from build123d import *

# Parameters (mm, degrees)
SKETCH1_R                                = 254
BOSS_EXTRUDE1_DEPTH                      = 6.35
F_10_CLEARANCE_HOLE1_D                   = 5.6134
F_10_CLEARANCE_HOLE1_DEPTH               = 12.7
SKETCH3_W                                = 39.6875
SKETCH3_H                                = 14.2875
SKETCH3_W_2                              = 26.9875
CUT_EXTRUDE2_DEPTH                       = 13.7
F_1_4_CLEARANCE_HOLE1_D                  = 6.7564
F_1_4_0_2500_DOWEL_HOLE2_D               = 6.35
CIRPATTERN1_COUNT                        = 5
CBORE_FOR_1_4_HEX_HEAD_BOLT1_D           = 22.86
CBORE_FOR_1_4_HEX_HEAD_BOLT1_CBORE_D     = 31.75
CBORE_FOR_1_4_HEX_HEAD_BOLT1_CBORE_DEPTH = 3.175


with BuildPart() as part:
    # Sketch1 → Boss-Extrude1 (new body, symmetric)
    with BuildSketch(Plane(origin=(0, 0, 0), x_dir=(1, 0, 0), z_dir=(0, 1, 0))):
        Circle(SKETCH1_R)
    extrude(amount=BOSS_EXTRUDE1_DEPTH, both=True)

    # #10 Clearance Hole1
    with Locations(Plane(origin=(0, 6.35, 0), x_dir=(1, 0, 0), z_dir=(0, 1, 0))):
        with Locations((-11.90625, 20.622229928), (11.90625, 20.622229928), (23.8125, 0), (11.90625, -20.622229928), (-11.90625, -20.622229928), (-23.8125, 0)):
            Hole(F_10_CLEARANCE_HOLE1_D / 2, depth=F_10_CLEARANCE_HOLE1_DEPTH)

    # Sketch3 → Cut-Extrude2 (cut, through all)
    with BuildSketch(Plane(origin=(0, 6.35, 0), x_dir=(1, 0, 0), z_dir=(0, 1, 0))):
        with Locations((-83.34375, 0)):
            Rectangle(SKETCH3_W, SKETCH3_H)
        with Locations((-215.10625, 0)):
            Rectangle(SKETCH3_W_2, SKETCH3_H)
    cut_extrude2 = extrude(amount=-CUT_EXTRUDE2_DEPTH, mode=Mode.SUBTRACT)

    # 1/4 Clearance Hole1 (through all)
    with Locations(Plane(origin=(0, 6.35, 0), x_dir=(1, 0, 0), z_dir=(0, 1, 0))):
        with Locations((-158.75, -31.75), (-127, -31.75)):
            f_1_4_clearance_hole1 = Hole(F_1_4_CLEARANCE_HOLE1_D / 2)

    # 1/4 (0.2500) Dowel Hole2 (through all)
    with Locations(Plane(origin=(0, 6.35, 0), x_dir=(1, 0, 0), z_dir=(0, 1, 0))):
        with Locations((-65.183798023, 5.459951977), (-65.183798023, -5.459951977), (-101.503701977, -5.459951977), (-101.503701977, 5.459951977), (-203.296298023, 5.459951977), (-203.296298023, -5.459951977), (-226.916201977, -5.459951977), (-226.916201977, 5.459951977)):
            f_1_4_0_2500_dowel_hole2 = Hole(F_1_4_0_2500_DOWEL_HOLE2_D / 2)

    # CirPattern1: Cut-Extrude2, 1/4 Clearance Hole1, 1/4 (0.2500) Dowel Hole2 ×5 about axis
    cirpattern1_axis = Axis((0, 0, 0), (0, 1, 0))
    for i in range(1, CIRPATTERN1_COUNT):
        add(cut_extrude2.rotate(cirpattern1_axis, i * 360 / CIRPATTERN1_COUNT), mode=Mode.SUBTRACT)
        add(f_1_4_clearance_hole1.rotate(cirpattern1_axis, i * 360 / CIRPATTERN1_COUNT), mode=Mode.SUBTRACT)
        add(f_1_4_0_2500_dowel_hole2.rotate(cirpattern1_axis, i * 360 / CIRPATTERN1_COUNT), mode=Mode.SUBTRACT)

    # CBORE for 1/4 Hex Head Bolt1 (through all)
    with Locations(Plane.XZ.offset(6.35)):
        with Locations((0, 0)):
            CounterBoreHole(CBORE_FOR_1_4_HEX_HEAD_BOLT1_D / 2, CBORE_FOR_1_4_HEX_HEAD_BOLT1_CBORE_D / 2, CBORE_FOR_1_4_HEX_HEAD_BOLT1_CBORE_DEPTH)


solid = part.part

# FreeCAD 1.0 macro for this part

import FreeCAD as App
import Part
import Sketcher

V = App.Vector
Q = App.Units.Quantity


def add_polygon(sketch, points):
    """Adds a closed chain of lines whose ends are joined by coincident constraints."""
    first, n = sketch.GeometryCount, len(points)
    for a, b in zip(points, points[1:] + points[:1]):
        sketch.addGeometry(Part.LineSegment(App.Vector(*a, 0), App.Vector(*b, 0)), False)
    for i in range(n):
        sketch.addConstraint(Sketcher.Constraint("Coincident", first + i, 2, first + (i + 1) % n, 1))

doc = App.newDocument("Part")
body = doc.addObject("PartDesign::Body", "Body")

# Sketch on XZ plane
sketch1 = body.newObject("Sketcher::SketchObject", "Sketch")
sketch1.AttachmentSupport = (doc.getObject("XZ_Plane"), [""])
sketch1.MapMode = "FlatFace"
sketch1.addGeometry(Part.Circle(V(0, 0, 0), V(0, 0, 1), 254), False)
sketch1.addConstraint(Sketcher.Constraint("Coincident", 0, 3, -1, 1))
sketch1.addConstraint(Sketcher.Constraint("Diameter", 0, Q("20 in")))
pad1 = body.newObject("PartDesign::Pad", "Pad")
pad1.Profile = sketch1
pad1.Length = Q("0.5 in")
pad1.Midplane = True

# Sketch on XZ plane
sketch2 = body.newObject("Sketcher::SketchObject", "Sketch001")
sketch2.AttachmentSupport = (doc.getObject("XZ_Plane"), [""])
sketch2.MapMode = "FlatFace"
sketch2.AttachmentOffset = App.Placement(V(0, 0, -0.25 * 25.4), App.Rotation())
sketch2.addGeometry(Part.Circle(V(-11.9, -20.6, 0), V(0, 0, 1), 2.8), False)
sketch2.addGeometry(Part.Circle(V(11.9, -20.6, 0), V(0, 0, 1), 2.8), False)
sketch2.addGeometry(Part.Circle(V(23.8, 0, 0), V(0, 0, 1), 2.8), False)
sketch2.addGeometry(Part.Circle(V(11.9, 20.6, 0), V(0, 0, 1), 2.8), False)
sketch2.addGeometry(Part.Circle(V(-11.9, 20.6, 0), V(0, 0, 1), 2.8), False)
sketch2.addGeometry(Part.Circle(V(-23.8, 0, 0), V(0, 0, 1), 2.8), False)
sketch2.addConstraint(Sketcher.Constraint("Equal", 0, 1))
sketch2.addConstraint(Sketcher.Constraint("Equal", 1, 2))
sketch2.addConstraint(Sketcher.Constraint("Equal", 2, 3))
sketch2.addConstraint(Sketcher.Constraint("Equal", 3, 4))
sketch2.addConstraint(Sketcher.Constraint("Equal", 4, 5))
sketch2.addConstraint(Sketcher.Constraint("Symmetric", 0, 3, 3, 3, -1, 1))
sketch2.addConstraint(Sketcher.Constraint("Symmetric", 1, 3, 4, 3, -1, 1))
sketch2.addConstraint(Sketcher.Constraint("Symmetric", 2, 3, 5, 3, -1, 1))
sketch2.addConstraint(Sketcher.Constraint("Symmetric", 0, 3, 1, 3, -2))
sketch2.addConstraint(Sketcher.Constraint("PointOnObject", 2, 3, -1))
sketch2.addConstraint(Sketcher.Constraint("Diameter", 0, Q("0.221 in")))
sketch2.addConstraint(Sketcher.Constraint("DistanceX", 0, 3, -1, 1, Q("0.46875 in")))
sketch2.addConstraint(Sketcher.Constraint("DistanceX", -1, 1, 2, 3, Q("0.9375 in")))
sketch2.addConstraint(Sketcher.Constraint("DistanceY", 0, 3, -1, 1, Q("20.62223 mm")))
doc.recompute()
hole = body.newObject("PartDesign::Hole", "Hole")
hole.Profile = sketch2
hole.ThreadType = "None"
hole.Diameter = Q("0.221 in")
hole.DepthType = "Dimension"
hole.Depth = Q("0.5 in")
hole.DrillPoint = "Flat"
hole.Reversed = True

# Sketch on XZ plane
sketch3 = body.newObject("Sketcher::SketchObject", "Sketch002")
sketch3.AttachmentSupport = (doc.getObject("XZ_Plane"), [""])
sketch3.MapMode = "FlatFace"
sketch3.AttachmentOffset = App.Placement(V(0, 0, -0.25 * 25.4), App.Rotation())
add_polygon(sketch3, [(-103, -7), (-103, 7), (-64, 7), (-64, -7)])  # lines 0-3
add_polygon(sketch3, [(-229, -7), (-229, 7), (-202, 7), (-202, -7)])  # lines 4-7
sketch3.addConstraint(Sketcher.Constraint("Vertical", 0))
sketch3.addConstraint(Sketcher.Constraint("Horizontal", 1))
sketch3.addConstraint(Sketcher.Constraint("Vertical", 2))
sketch3.addConstraint(Sketcher.Constraint("Horizontal", 3))
sketch3.addConstraint(Sketcher.Constraint("Vertical", 4))
sketch3.addConstraint(Sketcher.Constraint("Horizontal", 5))
sketch3.addConstraint(Sketcher.Constraint("Vertical", 6))
sketch3.addConstraint(Sketcher.Constraint("Horizontal", 7))
sketch3.addConstraint(Sketcher.Constraint("Horizontal", 1, 2, 4, 2))
sketch3.addConstraint(Sketcher.Constraint("Horizontal", 3, 2, 6, 2))
sketch3.addConstraint(Sketcher.Constraint("DistanceX", 4, 2, -1, 1, Q("9 in")))
sketch3.addConstraint(Sketcher.Constraint("DistanceX", 1, 2, -1, 1, Q("2.5 in")))
sketch3.addConstraint(Sketcher.Constraint("DistanceX", 1, 1, 1, 2, Q("1.5625 in")))
sketch3.addConstraint(Sketcher.Constraint("DistanceX", 5, 1, 5, 2, Q("1.0625 in")))
sketch3.addConstraint(Sketcher.Constraint("DistanceY", 0, 1, 0, 2, Q("0.5625 in")))
sketch3.addConstraint(Sketcher.Constraint("DistanceY", -1, 1, 0, 2, Q("0.28125 in")))
pocket1 = body.newObject("PartDesign::Pocket", "Pocket")
pocket1.Profile = sketch3
pocket1.Type = "ThroughAll"
pocket1.Reversed = True

# Sketch on XZ plane
sketch4 = body.newObject("Sketcher::SketchObject", "Sketch003")
sketch4.AttachmentSupport = (doc.getObject("XZ_Plane"), [""])
sketch4.MapMode = "FlatFace"
sketch4.AttachmentOffset = App.Placement(V(0, 0, -0.25 * 25.4), App.Rotation())
sketch4.addGeometry(Part.Circle(V(-158.8, 31.8, 0), V(0, 0, 1), 3.4), False)
sketch4.addGeometry(Part.Circle(V(-127, 31.8, 0), V(0, 0, 1), 3.4), False)
sketch4.addConstraint(Sketcher.Constraint("Equal", 0, 1))
sketch4.addConstraint(Sketcher.Constraint("Horizontal", 0, 3, 1, 3))
sketch4.addConstraint(Sketcher.Constraint("Diameter", 0, Q("0.266 in")))
sketch4.addConstraint(Sketcher.Constraint("DistanceX", 1, 3, -1, 1, Q("5 in")))
sketch4.addConstraint(Sketcher.Constraint("DistanceX", 0, 3, -1, 1, Q("6.25 in")))
sketch4.addConstraint(Sketcher.Constraint("DistanceY", -1, 1, 0, 3, Q("1.25 in")))
doc.recompute()
hole2 = body.newObject("PartDesign::Hole", "Hole001")
hole2.Profile = sketch4
hole2.ThreadType = "None"
hole2.Diameter = Q("0.266 in")
hole2.DepthType = "ThroughAll"
hole2.Reversed = True

# Sketch on XZ plane
sketch5 = body.newObject("Sketcher::SketchObject", "Sketch004")
sketch5.AttachmentSupport = (doc.getObject("XZ_Plane"), [""])
sketch5.MapMode = "FlatFace"
sketch5.AttachmentOffset = App.Placement(V(0, 0, -0.25 * 25.4), App.Rotation())
sketch5.addGeometry(Part.Circle(V(-65.2, -5.5, 0), V(0, 0, 1), 3.2), False)
sketch5.addGeometry(Part.Circle(V(-65.2, 5.5, 0), V(0, 0, 1), 3.2), False)
sketch5.addGeometry(Part.Circle(V(-101.5, 5.5, 0), V(0, 0, 1), 3.2), False)
sketch5.addGeometry(Part.Circle(V(-101.5, -5.5, 0), V(0, 0, 1), 3.2), False)
sketch5.addGeometry(Part.Circle(V(-203.3, -5.5, 0), V(0, 0, 1), 3.2), False)
sketch5.addGeometry(Part.Circle(V(-203.3, 5.5, 0), V(0, 0, 1), 3.2), False)
sketch5.addGeometry(Part.Circle(V(-226.9, 5.5, 0), V(0, 0, 1), 3.2), False)
sketch5.addGeometry(Part.Circle(V(-226.9, -5.5, 0), V(0, 0, 1), 3.2), False)
sketch5.addConstraint(Sketcher.Constraint("Equal", 0, 1))
sketch5.addConstraint(Sketcher.Constraint("Equal", 1, 2))
sketch5.addConstraint(Sketcher.Constraint("Equal", 2, 3))
sketch5.addConstraint(Sketcher.Constraint("Equal", 3, 4))
sketch5.addConstraint(Sketcher.Constraint("Equal", 4, 5))
sketch5.addConstraint(Sketcher.Constraint("Equal", 5, 6))
sketch5.addConstraint(Sketcher.Constraint("Equal", 6, 7))
sketch5.addConstraint(Sketcher.Constraint("Symmetric", 0, 3, 1, 3, -1))
sketch5.addConstraint(Sketcher.Constraint("Symmetric", 2, 3, 3, 3, -1))
sketch5.addConstraint(Sketcher.Constraint("Symmetric", 4, 3, 5, 3, -1))
sketch5.addConstraint(Sketcher.Constraint("Symmetric", 6, 3, 7, 3, -1))
sketch5.addConstraint(Sketcher.Constraint("Horizontal", 1, 3, 2, 3))
sketch5.addConstraint(Sketcher.Constraint("Horizontal", 3, 3, 4, 3))
sketch5.addConstraint(Sketcher.Constraint("Horizontal", 5, 3, 6, 3))
sketch5.addConstraint(Sketcher.Constraint("Diameter", 0, Q("0.25 in")))
sketch5.addConstraint(Sketcher.Constraint("DistanceX", 4, 3, 0, 3, Q("5.4375 in")))
sketch5.addConstraint(Sketcher.Constraint("DistanceX", 6, 3, 2, 3, Q("4.9375 in")))
sketch5.addConstraint(Sketcher.Constraint("DistanceX", 0, 3, -1, 1, Q("65.183798 mm")))
sketch5.addConstraint(Sketcher.Constraint("DistanceX", 2, 3, -1, 1, Q("101.503702 mm")))
sketch5.addConstraint(Sketcher.Constraint("DistanceY", 0, 3, -1, 1, Q("5.459952 mm")))
doc.recompute()
hole3 = body.newObject("PartDesign::Hole", "Hole002")
hole3.Profile = sketch5
hole3.ThreadType = "None"
hole3.Diameter = Q("0.25 in")
hole3.DepthType = "ThroughAll"
hole3.Reversed = True
doc.recompute()

polarpattern = body.newObject("PartDesign::PolarPattern", "PolarPattern")
polarpattern.Originals = [pocket1, hole2, hole3]
polarpattern.Axis = (doc.getObject("Y_Axis"), [""])
polarpattern.Angle = 360
polarpattern.Occurrences = 5
body.Tip = polarpattern

# Sketch on XZ plane
sketch6 = body.newObject("Sketcher::SketchObject", "Sketch005")
sketch6.AttachmentSupport = (doc.getObject("XZ_Plane"), [""])
sketch6.MapMode = "FlatFace"
sketch6.AttachmentOffset = App.Placement(V(0, 0, 0.25 * 25.4), App.Rotation())
sketch6.addGeometry(Part.Circle(V(0, 0, 0), V(0, 0, 1), 11), False)
sketch6.addConstraint(Sketcher.Constraint("Coincident", 0, 3, -1, 1))
sketch6.addConstraint(Sketcher.Constraint("Diameter", 0, Q("0.9 in")))
doc.recompute()
hole4 = body.newObject("PartDesign::Hole", "Hole003")
hole4.Profile = sketch6
hole4.ThreadType = "None"
hole4.Diameter = Q("0.9 in")
hole4.DepthType = "ThroughAll"
hole4.HoleCutType = "Counterbore"
hole4.HoleCutDiameter = Q("1.25 in")
hole4.HoleCutDepth = Q("0.125 in")

doc.recompute()
